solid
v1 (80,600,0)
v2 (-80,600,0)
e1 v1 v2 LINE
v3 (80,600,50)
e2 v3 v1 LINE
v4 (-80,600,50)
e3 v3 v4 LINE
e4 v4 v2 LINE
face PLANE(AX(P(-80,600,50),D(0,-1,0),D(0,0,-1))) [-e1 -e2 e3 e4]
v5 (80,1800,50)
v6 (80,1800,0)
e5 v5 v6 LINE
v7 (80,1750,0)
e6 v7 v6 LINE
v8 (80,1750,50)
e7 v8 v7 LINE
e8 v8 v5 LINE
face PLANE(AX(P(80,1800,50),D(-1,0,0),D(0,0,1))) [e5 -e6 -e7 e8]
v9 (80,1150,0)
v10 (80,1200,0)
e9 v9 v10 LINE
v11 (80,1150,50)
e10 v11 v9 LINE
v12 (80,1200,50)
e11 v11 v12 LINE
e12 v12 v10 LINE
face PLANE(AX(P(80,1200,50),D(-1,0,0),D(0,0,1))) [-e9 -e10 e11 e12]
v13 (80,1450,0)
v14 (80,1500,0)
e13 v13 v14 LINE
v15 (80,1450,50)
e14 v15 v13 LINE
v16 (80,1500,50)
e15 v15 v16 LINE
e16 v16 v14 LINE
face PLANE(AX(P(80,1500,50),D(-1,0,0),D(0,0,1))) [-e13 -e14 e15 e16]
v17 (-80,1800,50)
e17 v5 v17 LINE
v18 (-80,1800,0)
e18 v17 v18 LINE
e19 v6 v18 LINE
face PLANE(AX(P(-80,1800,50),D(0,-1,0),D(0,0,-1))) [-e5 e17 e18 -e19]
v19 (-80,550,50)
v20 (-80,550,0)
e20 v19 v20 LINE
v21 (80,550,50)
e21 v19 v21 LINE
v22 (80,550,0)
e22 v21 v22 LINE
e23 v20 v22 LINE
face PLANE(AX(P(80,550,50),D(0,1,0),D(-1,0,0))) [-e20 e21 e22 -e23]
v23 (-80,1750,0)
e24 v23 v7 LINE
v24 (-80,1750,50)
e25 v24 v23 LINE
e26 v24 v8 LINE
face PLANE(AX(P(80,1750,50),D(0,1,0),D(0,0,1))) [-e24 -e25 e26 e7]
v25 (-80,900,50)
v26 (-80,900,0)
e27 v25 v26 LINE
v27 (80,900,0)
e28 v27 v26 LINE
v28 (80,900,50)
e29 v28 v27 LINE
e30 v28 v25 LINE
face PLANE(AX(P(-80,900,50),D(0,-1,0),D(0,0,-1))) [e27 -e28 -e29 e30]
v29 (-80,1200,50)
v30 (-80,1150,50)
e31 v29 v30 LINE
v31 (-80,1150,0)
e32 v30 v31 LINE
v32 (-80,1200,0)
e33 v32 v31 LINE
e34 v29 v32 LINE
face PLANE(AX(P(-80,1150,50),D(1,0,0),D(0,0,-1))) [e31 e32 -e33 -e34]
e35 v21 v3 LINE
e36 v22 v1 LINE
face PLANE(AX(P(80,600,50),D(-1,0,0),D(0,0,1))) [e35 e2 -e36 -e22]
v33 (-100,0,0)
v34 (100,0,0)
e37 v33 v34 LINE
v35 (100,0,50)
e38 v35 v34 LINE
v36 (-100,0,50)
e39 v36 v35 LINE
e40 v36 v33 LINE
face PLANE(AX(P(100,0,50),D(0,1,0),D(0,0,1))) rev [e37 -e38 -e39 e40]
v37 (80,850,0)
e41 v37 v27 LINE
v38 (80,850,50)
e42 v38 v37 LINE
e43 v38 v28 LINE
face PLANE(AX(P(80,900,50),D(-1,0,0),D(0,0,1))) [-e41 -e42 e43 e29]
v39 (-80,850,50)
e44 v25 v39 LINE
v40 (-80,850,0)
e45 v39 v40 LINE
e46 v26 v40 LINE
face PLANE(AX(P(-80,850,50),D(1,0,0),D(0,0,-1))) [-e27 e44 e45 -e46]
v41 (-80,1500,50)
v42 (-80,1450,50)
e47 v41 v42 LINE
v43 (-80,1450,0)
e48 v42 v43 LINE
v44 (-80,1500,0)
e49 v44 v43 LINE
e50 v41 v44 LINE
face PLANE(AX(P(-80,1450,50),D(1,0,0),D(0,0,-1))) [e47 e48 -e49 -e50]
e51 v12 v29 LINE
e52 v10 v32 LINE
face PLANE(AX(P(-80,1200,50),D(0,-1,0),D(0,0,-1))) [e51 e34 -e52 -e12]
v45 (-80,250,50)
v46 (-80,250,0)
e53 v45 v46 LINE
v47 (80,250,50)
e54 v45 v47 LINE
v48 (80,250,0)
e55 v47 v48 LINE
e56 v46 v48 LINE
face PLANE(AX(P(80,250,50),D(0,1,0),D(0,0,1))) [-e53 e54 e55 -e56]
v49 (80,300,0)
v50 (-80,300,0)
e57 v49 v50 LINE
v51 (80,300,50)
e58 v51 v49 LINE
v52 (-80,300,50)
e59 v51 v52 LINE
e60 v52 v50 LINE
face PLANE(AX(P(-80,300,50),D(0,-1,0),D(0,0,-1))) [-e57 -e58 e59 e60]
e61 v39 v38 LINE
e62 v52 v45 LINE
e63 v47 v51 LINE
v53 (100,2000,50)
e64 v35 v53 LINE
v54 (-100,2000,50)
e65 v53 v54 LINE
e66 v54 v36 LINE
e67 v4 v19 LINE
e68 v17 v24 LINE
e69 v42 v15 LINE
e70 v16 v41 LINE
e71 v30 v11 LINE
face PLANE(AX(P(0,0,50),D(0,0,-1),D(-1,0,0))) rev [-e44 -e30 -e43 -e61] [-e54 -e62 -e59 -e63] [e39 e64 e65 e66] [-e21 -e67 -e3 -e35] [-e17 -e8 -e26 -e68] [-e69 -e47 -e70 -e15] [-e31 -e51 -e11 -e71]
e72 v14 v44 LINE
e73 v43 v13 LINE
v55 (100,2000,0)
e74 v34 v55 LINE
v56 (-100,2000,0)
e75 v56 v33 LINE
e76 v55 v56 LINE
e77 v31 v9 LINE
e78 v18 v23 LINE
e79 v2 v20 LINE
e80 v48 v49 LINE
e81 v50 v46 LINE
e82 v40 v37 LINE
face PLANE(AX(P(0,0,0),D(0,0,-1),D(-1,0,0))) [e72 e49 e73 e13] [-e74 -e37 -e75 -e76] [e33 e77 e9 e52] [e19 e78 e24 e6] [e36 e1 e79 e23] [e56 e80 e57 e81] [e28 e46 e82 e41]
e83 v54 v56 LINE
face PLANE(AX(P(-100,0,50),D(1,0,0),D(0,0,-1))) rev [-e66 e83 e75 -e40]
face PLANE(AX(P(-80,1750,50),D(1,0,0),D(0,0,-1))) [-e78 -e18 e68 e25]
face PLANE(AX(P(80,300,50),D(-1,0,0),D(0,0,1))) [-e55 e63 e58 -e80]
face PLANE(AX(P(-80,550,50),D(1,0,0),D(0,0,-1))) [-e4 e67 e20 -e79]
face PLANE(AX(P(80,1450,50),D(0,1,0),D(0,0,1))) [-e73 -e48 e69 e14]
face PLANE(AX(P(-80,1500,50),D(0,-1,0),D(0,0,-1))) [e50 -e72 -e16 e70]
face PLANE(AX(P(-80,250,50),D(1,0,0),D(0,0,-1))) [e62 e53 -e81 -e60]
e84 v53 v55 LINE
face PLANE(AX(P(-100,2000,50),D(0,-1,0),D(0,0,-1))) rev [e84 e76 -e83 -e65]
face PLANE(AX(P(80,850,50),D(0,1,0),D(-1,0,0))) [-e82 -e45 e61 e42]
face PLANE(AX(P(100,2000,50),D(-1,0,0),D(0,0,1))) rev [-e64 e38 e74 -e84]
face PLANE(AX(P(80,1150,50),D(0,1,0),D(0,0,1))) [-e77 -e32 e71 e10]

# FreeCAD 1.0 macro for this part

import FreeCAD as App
import Part
import Sketcher
Q = App.Units.Quantity


def add_polygon(sketch, points):
    """Adds a closed chain of lines whose ends are joined by coincident constraints."""
    first, n = sketch.GeometryCount, len(points)
    for a, b in zip(points, points[1:] + points[:1]):
        sketch.addGeometry(Part.LineSegment(App.Vector(*a, 0), App.Vector(*b, 0)), False)
    for i in range(n):
        sketch.addConstraint(Sketcher.Constraint("Coincident", first + i, 2, first + (i + 1) % n, 1))

doc = App.newDocument("Part")
body = doc.addObject("PartDesign::Body", "Body")

# Sketch on XY plane
sketch1 = doc.addObject("Sketcher::SketchObject", "Sketch")
body.addObject(sketch1)
sketch1.AttachmentSupport = (doc.XY_Plane, [""])
sketch1.MapMode = "FlatFace"
add_polygon(sketch1, [(-100, 2000), (-100, 0), (100, 0), (100, 2000)])  # lines 0-3
add_polygon(sketch1, [(80, 250), (-80, 250), (-80, 300), (80, 300)])  # lines 4-7
add_polygon(sketch1, [(80, 550), (-80, 550), (-80, 600), (80, 600)])  # lines 8-11
add_polygon(sketch1, [(80, 850), (-80, 850), (-80, 900), (80, 900)])  # lines 12-15
add_polygon(sketch1, [(80, 1150), (-80, 1150), (-80, 1200), (80, 1200)])  # lines 16-19
add_polygon(sketch1, [(80, 1450), (-80, 1450), (-80, 1500), (80, 1500)])  # lines 20-23
add_polygon(sketch1, [(80, 1750), (-80, 1750), (-80, 1800), (80, 1800)])  # lines 24-27
sketch1.addConstraint([
    Sketcher.Constraint("Vertical", 0),
    Sketcher.Constraint("Horizontal", 1),
    Sketcher.Constraint("Vertical", 2),
    Sketcher.Constraint("Horizontal", 3),
    Sketcher.Constraint("Horizontal", 4),
    Sketcher.Constraint("Vertical", 5),
    Sketcher.Constraint("Horizontal", 6),
    Sketcher.Constraint("Vertical", 7),
    Sketcher.Constraint("Horizontal", 8),
    Sketcher.Constraint("Vertical", 9),
    Sketcher.Constraint("Horizontal", 10),
    Sketcher.Constraint("Vertical", 11),
    Sketcher.Constraint("Horizontal", 12),
    Sketcher.Constraint("Vertical", 13),
    Sketcher.Constraint("Horizontal", 14),
    Sketcher.Constraint("Vertical", 15),
    Sketcher.Constraint("Horizontal", 16),
    Sketcher.Constraint("Vertical", 17),
    Sketcher.Constraint("Horizontal", 18),
    Sketcher.Constraint("Vertical", 19),
    Sketcher.Constraint("Horizontal", 20),
    Sketcher.Constraint("Vertical", 21),
    Sketcher.Constraint("Horizontal", 22),
    Sketcher.Constraint("Vertical", 23),
    Sketcher.Constraint("Horizontal", 24),
    Sketcher.Constraint("Vertical", 25),
    Sketcher.Constraint("Horizontal", 26),
    Sketcher.Constraint("Vertical", 27),
    Sketcher.Constraint("Symmetric", 0, 2, 1, 2, -1, 1),
    Sketcher.Constraint("Vertical", 5, 2, 8, 2),
    Sketcher.Constraint("Vertical", 7, 2, 10, 2),
    Sketcher.Constraint("Vertical", 9, 2, 12, 2),
    Sketcher.Constraint("Vertical", 11, 2, 14, 2),
    Sketcher.Constraint("Vertical", 13, 2, 16, 2),
    Sketcher.Constraint("Vertical", 15, 2, 18, 2),
    Sketcher.Constraint("Vertical", 17, 2, 20, 2),
    Sketcher.Constraint("Vertical", 19, 2, 22, 2),
    Sketcher.Constraint("Vertical", 21, 2, 24, 2),
    Sketcher.Constraint("Vertical", 23, 2, 26, 2),
    Sketcher.Constraint("Equal", 7, 9),
    Sketcher.Constraint("Equal", 11, 13),
    Sketcher.Constraint("Equal", 15, 17),
    Sketcher.Constraint("Equal", 19, 21),
    Sketcher.Constraint("Equal", 23, 25),
    Sketcher.Constraint("DistanceX", 1, 1, 1, 2, Q("200 mm")),
    Sketcher.Constraint("DistanceX", 4, 2, 4, 1, Q("160 mm")),
    Sketcher.Constraint("DistanceY", 0, 2, 0, 1, Q("2000 mm")),
    Sketcher.Constraint("DistanceY", 5, 1, 5, 2, Q("50 mm")),
    Sketcher.Constraint("DistanceX", 4, 2, -1, 1, Q("80 mm")),
    Sketcher.Constraint("DistanceY", -1, 1, 4, 2, Q("250 mm")),
    Sketcher.Constraint("DistanceY", -1, 1, 8, 2, Q("550 mm")),
    Sketcher.Constraint("DistanceY", -1, 1, 12, 2, Q("850 mm")),
    Sketcher.Constraint("DistanceY", -1, 1, 16, 2, Q("1150 mm")),
    Sketcher.Constraint("DistanceY", -1, 1, 20, 2, Q("1450 mm")),
    Sketcher.Constraint("DistanceY", -1, 1, 24, 2, Q("1750 mm")),
])
pad1 = doc.addObject("PartDesign::Pad", "Pad")
body.addObject(pad1)
pad1.Profile = sketch1
pad1.Length = 50

doc.recompute()
